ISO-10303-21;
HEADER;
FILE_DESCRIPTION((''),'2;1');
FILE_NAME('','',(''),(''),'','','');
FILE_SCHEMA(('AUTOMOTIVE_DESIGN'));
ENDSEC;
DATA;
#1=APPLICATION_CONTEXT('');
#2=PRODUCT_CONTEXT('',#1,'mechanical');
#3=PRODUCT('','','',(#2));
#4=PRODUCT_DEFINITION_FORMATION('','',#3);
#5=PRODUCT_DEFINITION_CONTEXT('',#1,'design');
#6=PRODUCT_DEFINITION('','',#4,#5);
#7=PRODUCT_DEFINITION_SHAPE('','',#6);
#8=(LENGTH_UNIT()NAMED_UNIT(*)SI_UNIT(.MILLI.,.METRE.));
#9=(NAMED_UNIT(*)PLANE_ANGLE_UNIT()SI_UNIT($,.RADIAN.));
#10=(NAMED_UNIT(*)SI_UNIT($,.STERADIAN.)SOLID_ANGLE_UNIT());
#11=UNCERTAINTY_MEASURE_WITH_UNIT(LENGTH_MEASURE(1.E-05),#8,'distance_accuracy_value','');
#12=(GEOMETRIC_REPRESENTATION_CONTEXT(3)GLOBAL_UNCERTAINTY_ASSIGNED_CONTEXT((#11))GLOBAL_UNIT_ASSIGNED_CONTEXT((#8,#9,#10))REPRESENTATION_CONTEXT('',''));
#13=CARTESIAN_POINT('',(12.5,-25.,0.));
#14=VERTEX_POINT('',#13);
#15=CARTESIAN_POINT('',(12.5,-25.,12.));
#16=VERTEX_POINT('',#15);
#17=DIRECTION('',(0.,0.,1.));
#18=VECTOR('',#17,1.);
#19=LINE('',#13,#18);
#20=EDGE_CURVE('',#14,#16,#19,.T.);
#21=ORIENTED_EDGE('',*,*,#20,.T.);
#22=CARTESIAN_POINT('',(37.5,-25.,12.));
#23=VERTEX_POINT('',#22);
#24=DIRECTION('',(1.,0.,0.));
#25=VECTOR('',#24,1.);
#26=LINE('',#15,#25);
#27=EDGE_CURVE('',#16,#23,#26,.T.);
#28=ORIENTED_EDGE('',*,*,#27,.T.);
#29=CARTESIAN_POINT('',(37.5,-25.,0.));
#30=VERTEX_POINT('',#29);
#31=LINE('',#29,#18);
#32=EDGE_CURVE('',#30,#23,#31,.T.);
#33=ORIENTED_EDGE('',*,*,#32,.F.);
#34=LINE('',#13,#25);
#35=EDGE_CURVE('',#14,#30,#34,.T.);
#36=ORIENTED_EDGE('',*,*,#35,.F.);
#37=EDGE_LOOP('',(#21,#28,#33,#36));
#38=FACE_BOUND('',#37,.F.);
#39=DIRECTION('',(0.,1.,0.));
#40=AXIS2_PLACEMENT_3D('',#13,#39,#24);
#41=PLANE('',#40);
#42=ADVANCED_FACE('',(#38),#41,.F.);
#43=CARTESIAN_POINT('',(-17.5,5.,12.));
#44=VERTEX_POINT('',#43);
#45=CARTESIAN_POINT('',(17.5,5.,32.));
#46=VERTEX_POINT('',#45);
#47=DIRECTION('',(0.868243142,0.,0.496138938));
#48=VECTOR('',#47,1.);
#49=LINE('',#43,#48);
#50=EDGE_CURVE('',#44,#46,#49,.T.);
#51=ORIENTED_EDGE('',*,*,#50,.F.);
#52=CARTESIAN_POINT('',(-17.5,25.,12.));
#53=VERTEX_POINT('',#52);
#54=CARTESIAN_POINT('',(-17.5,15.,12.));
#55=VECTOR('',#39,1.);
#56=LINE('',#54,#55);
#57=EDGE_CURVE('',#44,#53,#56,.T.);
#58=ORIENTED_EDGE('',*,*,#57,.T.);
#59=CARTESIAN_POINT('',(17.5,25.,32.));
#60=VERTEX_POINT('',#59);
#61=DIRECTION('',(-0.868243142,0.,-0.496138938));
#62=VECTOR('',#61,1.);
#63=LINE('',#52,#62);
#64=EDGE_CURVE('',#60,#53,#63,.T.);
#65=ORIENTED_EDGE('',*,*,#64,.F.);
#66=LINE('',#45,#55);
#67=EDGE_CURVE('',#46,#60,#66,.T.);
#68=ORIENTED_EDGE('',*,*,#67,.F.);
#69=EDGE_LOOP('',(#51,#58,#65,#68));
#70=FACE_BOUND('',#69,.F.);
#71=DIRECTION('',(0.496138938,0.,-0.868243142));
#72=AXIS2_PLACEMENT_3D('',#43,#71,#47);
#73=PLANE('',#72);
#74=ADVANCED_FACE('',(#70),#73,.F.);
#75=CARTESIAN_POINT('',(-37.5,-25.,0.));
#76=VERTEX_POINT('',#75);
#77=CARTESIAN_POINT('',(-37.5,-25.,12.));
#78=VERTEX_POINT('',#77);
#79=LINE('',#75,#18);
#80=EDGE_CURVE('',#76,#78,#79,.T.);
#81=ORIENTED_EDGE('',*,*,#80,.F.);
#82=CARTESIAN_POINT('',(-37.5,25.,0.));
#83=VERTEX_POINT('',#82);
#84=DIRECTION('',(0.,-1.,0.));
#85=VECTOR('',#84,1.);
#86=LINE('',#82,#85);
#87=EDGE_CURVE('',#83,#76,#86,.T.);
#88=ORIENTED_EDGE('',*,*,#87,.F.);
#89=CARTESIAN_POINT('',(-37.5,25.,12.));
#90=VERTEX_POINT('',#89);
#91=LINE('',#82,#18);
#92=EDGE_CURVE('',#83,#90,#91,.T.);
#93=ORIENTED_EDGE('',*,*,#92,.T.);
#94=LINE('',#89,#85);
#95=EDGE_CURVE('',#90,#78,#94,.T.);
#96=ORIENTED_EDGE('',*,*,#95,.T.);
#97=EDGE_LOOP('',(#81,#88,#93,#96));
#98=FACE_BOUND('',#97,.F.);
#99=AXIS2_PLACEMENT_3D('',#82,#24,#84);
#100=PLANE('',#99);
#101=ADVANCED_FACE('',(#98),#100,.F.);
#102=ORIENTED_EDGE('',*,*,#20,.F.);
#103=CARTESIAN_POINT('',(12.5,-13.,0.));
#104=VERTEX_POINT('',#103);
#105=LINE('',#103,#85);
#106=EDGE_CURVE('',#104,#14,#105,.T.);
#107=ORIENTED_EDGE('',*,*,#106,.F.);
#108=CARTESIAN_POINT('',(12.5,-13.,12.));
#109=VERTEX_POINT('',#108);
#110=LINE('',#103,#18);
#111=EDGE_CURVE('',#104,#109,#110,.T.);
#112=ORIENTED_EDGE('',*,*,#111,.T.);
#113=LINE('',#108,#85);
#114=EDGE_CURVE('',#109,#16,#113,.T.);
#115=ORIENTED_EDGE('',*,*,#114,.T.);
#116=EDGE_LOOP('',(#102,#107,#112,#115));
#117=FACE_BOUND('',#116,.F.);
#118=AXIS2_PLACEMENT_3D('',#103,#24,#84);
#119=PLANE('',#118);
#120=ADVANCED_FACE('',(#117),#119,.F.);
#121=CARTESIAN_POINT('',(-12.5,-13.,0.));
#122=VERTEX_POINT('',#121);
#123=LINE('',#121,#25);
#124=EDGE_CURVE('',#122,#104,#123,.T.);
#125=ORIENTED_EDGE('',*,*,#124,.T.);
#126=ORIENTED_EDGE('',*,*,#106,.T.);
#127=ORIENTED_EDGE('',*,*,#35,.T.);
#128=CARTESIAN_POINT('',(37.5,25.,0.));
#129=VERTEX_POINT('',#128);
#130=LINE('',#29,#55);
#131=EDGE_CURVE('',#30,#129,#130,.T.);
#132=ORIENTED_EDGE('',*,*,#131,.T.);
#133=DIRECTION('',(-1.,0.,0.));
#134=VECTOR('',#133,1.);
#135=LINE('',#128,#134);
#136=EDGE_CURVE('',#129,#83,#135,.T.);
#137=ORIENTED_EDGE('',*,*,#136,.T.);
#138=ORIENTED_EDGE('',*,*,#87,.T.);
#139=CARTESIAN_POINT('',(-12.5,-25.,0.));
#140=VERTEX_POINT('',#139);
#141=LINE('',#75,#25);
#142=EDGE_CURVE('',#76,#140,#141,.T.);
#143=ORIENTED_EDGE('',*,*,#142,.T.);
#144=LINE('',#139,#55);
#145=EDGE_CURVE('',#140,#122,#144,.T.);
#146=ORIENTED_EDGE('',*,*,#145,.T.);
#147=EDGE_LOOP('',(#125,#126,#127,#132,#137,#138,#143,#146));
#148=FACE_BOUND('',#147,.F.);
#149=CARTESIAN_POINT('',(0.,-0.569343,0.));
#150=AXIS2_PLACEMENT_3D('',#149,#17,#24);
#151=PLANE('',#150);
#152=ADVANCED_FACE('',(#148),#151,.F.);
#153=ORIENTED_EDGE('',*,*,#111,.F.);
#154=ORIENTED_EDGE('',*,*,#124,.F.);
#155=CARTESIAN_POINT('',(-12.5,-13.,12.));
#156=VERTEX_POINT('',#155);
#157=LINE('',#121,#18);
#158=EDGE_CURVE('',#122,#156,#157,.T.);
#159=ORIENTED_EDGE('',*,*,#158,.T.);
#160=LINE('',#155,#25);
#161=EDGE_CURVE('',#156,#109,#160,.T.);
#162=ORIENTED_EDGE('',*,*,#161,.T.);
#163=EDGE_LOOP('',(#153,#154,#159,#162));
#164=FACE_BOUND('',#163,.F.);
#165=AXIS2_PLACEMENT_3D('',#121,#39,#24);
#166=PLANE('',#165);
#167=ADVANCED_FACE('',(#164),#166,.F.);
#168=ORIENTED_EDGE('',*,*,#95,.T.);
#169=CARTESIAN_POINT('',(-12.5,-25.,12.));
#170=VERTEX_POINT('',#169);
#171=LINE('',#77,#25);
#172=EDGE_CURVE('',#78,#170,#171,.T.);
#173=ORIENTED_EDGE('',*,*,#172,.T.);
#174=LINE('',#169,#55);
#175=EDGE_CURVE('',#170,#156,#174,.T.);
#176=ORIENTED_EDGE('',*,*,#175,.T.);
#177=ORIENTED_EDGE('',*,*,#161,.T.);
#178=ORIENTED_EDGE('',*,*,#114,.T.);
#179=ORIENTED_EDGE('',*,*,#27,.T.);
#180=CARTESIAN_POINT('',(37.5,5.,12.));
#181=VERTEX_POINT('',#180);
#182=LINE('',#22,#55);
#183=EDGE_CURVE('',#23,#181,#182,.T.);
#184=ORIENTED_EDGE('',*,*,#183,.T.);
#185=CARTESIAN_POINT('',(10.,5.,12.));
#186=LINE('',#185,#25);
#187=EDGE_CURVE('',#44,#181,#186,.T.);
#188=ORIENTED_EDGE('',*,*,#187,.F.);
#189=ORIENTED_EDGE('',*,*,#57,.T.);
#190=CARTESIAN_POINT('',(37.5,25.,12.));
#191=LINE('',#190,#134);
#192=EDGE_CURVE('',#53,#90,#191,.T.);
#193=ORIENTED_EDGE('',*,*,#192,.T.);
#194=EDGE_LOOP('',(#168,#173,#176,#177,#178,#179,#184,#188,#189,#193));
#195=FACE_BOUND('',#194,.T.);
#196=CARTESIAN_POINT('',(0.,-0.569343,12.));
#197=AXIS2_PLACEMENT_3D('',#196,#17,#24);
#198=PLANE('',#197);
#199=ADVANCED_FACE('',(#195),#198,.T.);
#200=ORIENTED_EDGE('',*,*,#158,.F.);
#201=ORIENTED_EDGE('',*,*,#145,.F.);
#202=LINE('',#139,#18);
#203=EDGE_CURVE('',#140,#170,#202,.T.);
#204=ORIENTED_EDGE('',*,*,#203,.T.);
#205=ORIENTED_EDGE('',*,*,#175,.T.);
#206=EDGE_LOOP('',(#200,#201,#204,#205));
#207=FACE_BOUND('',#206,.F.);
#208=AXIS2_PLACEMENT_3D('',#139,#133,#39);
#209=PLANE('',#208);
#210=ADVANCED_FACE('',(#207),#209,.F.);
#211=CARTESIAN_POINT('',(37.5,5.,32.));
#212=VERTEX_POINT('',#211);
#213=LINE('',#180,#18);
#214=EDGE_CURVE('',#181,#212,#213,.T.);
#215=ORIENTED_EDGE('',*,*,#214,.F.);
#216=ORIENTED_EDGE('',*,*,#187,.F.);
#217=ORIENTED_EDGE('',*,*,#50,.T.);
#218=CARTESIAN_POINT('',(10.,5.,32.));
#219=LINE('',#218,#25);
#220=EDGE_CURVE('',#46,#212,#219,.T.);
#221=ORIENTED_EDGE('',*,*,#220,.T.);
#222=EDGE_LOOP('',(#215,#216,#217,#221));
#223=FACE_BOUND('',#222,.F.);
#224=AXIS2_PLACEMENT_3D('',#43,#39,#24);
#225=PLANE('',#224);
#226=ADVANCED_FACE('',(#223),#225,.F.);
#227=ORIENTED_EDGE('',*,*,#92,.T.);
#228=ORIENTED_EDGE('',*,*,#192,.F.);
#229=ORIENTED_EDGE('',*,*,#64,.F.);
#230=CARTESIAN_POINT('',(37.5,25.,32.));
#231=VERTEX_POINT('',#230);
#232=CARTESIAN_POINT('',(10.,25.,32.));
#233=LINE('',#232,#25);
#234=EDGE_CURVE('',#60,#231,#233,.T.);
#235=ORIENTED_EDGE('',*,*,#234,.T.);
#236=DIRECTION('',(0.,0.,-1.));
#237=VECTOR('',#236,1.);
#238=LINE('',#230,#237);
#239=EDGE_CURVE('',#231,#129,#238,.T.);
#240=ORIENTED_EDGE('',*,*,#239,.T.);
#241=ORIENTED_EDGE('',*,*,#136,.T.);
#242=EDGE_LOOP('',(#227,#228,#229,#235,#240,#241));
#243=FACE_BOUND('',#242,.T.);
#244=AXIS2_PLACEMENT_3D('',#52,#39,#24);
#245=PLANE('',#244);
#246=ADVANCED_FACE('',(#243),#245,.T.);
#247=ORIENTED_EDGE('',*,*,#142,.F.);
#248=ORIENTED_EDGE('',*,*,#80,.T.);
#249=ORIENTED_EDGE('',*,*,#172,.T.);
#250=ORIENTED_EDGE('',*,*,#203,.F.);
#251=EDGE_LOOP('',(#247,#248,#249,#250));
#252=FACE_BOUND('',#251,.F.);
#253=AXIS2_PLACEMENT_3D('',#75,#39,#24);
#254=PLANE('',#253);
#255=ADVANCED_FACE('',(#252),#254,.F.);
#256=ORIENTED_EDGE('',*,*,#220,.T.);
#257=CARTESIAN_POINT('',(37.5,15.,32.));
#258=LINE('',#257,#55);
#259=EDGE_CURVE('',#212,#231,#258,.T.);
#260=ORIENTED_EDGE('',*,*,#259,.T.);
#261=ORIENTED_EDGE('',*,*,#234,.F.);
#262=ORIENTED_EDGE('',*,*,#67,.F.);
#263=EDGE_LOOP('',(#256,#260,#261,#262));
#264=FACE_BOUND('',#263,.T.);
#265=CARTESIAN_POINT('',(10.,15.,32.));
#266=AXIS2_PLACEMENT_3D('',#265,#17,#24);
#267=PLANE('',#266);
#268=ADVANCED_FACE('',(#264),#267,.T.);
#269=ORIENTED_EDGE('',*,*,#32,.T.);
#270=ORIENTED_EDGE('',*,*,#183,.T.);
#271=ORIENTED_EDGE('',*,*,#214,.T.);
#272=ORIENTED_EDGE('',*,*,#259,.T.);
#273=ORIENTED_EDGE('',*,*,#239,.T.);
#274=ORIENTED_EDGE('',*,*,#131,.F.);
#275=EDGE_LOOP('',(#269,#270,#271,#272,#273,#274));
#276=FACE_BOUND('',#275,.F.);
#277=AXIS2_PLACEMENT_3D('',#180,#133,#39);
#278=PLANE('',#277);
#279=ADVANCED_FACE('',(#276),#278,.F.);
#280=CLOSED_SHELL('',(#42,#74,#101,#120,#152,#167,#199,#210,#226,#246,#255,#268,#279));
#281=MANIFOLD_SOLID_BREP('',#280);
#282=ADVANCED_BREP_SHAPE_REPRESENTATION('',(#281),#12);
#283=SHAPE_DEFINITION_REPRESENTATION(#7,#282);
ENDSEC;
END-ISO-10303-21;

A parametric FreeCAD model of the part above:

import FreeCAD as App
import Part
import Sketcher
Q = App.Units.Quantity

doc = App.newDocument("Part")
params = doc.addObject("Spreadsheet::Sheet", "Params")
for row, (alias, value) in enumerate([
    ("sketch1_width", "75 mm"),
    ("sketch1_height", "50 mm"),
    ("sketch1_height2", "12 mm"),
    ("pad1_length", "12 mm"),
    ("sketch2_width", "55 mm"),
    ("sketch2_height", "20 mm"),
    ("pad2_length", "20 mm"),
    ("sketch3_width", "35 mm"),
    ("sketch3_height", "20 mm"),
    ("pocket1_length", "25 mm"),
], start=1):
    params.set(f"A{row}", alias)
    params.set(f"B{row}", "=" + value)
    params.setAlias(f"B{row}", alias)

body = doc.addObject("PartDesign::Body", "Body")

sketch1 = body.newObject("Sketcher::SketchObject", "Sketch")
sketch1.AttachmentSupport = (doc.getObject("XY_Plane"), [""])
sketch1.MapMode = "FlatFace"
sketch1.addGeometry([
    Part.LineSegment(App.Vector(38, 25, 0), App.Vector(-38, 25, 0)),
    Part.LineSegment(App.Vector(-38, 25, 0), App.Vector(-38, -25, 0)),
    Part.LineSegment(App.Vector(-38, -25, 0), App.Vector(-12, -25, 0)),
    Part.LineSegment(App.Vector(-12, -25, 0), App.Vector(-12, -13, 0)),
    Part.LineSegment(App.Vector(-12, -13, 0), App.Vector(12, -13, 0)),
    Part.LineSegment(App.Vector(12, -13, 0), App.Vector(12, -25, 0)),
    Part.LineSegment(App.Vector(12, -25, 0), App.Vector(38, -25, 0)),
    Part.LineSegment(App.Vector(38, -25, 0), App.Vector(38, 25, 0)),
], False)
sketch1.addConstraint([
    Sketcher.Constraint("Coincident", 0, 2, 1, 1),
    Sketcher.Constraint("Coincident", 1, 2, 2, 1),
    Sketcher.Constraint("Coincident", 2, 2, 3, 1),
    Sketcher.Constraint("Coincident", 3, 2, 4, 1),
    Sketcher.Constraint("Coincident", 4, 2, 5, 1),
    Sketcher.Constraint("Coincident", 5, 2, 6, 1),
    Sketcher.Constraint("Coincident", 6, 2, 7, 1),
    Sketcher.Constraint("Coincident", 7, 2, 0, 1),
    Sketcher.Constraint("Horizontal", 0),
    Sketcher.Constraint("Vertical", 1),
    Sketcher.Constraint("Horizontal", 2),
    Sketcher.Constraint("Vertical", 3),
    Sketcher.Constraint("Horizontal", 4),
    Sketcher.Constraint("Vertical", 5),
    Sketcher.Constraint("Horizontal", 6),
    Sketcher.Constraint("Vertical", 7),
    Sketcher.Constraint("Symmetric", 0, 2, 6, 2, -1, 1),
    Sketcher.Constraint("Symmetric", 2, 2, 5, 2, -2),
    Sketcher.Constraint("Equal", 2, 4),
    Sketcher.Constraint("DistanceX", 0, 2, 0, 1, Q("75 mm")),
    Sketcher.Constraint("DistanceY", 1, 2, 1, 1, Q("50 mm")),
    Sketcher.Constraint("DistanceY", 3, 1, 3, 2, Q("12 mm")),
])
sketch1.setExpression("Constraints[19]", "Params.sketch1_width")
sketch1.setExpression("Constraints[20]", "Params.sketch1_height")
sketch1.setExpression("Constraints[21]", "Params.sketch1_height2")
pad1 = body.newObject("PartDesign::Pad", "Pad")
pad1.Profile = sketch1
pad1.setExpression("Length", "Params.pad1_length")

sketch2 = body.newObject("Sketcher::SketchObject", "Sketch001")
sketch2.AttachmentSupport = (doc.getObject("XY_Plane"), [""])
sketch2.MapMode = "FlatFace"
sketch2.AttachmentOffset = App.Placement(App.Vector(0, 0, 12), App.Rotation())
sketch2.addGeometry([
    Part.LineSegment(App.Vector(-18, 25, 0), App.Vector(-18, 5, 0)),
    Part.LineSegment(App.Vector(-18, 5, 0), App.Vector(38, 5, 0)),
    Part.LineSegment(App.Vector(38, 5, 0), App.Vector(38, 25, 0)),
    Part.LineSegment(App.Vector(38, 25, 0), App.Vector(-18, 25, 0)),
], False)
sketch2.addConstraint([
    Sketcher.Constraint("Coincident", 0, 2, 1, 1),
    Sketcher.Constraint("Coincident", 1, 2, 2, 1),
    Sketcher.Constraint("Coincident", 2, 2, 3, 1),
    Sketcher.Constraint("Coincident", 3, 2, 0, 1),
    Sketcher.Constraint("Vertical", 0),
    Sketcher.Constraint("Horizontal", 1),
    Sketcher.Constraint("Vertical", 2),
    Sketcher.Constraint("Horizontal", 3),
    Sketcher.Constraint("DistanceX", 1, 1, 1, 2, Q("55 mm")),
    Sketcher.Constraint("DistanceY", 0, 2, 0, 1, Q("20 mm")),
    Sketcher.Constraint("DistanceY", -1, 1, 0, 2, Q("5 mm")),
    Sketcher.Constraint("DistanceX", 0, 2, -1, 1, Q("17.5 mm")),
])
sketch2.setExpression("Constraints[8]", "Params.sketch2_width")
sketch2.setExpression("Constraints[9]", "Params.sketch2_height")
pad2 = body.newObject("PartDesign::Pad", "Pad001")
pad2.Profile = sketch2
pad2.setExpression("Length", "Params.pad2_length")

sketch3 = body.newObject("Sketcher::SketchObject", "Sketch002")
sketch3.AttachmentSupport = (doc.getObject("XZ_Plane"), [""])
sketch3.MapMode = "FlatFace"
sketch3.AttachmentOffset = App.Placement(App.Vector(0, 0, -5), App.Rotation())
sketch3.addGeometry([
    Part.LineSegment(App.Vector(-18, 12, 0), App.Vector(18, 32, 0)),
    Part.LineSegment(App.Vector(18, 32, 0), App.Vector(-18, 32, 0)),
    Part.LineSegment(App.Vector(-18, 32, 0), App.Vector(-18, 12, 0)),
], False)
sketch3.addConstraint([
    Sketcher.Constraint("Coincident", 0, 2, 1, 1),
    Sketcher.Constraint("Coincident", 1, 2, 2, 1),
    Sketcher.Constraint("Coincident", 2, 2, 0, 1),
    Sketcher.Constraint("Horizontal", 1),
    Sketcher.Constraint("Vertical", 2),
    Sketcher.Constraint("DistanceX", 1, 2, 1, 1, Q("35 mm")),
    Sketcher.Constraint("DistanceY", 2, 2, 2, 1, Q("20 mm")),
    Sketcher.Constraint("DistanceY", -1, 1, 0, 2, Q("32 mm")),
    Sketcher.Constraint("DistanceX", -1, 1, 0, 2, Q("17.5 mm")),
])
sketch3.setExpression("Constraints[5]", "Params.sketch3_width")
sketch3.setExpression("Constraints[6]", "Params.sketch3_height")
pocket1 = body.newObject("PartDesign::Pocket", "Pocket")
pocket1.Profile = sketch3
pocket1.setExpression("Length", "Params.pocket1_length")

doc.recompute()
